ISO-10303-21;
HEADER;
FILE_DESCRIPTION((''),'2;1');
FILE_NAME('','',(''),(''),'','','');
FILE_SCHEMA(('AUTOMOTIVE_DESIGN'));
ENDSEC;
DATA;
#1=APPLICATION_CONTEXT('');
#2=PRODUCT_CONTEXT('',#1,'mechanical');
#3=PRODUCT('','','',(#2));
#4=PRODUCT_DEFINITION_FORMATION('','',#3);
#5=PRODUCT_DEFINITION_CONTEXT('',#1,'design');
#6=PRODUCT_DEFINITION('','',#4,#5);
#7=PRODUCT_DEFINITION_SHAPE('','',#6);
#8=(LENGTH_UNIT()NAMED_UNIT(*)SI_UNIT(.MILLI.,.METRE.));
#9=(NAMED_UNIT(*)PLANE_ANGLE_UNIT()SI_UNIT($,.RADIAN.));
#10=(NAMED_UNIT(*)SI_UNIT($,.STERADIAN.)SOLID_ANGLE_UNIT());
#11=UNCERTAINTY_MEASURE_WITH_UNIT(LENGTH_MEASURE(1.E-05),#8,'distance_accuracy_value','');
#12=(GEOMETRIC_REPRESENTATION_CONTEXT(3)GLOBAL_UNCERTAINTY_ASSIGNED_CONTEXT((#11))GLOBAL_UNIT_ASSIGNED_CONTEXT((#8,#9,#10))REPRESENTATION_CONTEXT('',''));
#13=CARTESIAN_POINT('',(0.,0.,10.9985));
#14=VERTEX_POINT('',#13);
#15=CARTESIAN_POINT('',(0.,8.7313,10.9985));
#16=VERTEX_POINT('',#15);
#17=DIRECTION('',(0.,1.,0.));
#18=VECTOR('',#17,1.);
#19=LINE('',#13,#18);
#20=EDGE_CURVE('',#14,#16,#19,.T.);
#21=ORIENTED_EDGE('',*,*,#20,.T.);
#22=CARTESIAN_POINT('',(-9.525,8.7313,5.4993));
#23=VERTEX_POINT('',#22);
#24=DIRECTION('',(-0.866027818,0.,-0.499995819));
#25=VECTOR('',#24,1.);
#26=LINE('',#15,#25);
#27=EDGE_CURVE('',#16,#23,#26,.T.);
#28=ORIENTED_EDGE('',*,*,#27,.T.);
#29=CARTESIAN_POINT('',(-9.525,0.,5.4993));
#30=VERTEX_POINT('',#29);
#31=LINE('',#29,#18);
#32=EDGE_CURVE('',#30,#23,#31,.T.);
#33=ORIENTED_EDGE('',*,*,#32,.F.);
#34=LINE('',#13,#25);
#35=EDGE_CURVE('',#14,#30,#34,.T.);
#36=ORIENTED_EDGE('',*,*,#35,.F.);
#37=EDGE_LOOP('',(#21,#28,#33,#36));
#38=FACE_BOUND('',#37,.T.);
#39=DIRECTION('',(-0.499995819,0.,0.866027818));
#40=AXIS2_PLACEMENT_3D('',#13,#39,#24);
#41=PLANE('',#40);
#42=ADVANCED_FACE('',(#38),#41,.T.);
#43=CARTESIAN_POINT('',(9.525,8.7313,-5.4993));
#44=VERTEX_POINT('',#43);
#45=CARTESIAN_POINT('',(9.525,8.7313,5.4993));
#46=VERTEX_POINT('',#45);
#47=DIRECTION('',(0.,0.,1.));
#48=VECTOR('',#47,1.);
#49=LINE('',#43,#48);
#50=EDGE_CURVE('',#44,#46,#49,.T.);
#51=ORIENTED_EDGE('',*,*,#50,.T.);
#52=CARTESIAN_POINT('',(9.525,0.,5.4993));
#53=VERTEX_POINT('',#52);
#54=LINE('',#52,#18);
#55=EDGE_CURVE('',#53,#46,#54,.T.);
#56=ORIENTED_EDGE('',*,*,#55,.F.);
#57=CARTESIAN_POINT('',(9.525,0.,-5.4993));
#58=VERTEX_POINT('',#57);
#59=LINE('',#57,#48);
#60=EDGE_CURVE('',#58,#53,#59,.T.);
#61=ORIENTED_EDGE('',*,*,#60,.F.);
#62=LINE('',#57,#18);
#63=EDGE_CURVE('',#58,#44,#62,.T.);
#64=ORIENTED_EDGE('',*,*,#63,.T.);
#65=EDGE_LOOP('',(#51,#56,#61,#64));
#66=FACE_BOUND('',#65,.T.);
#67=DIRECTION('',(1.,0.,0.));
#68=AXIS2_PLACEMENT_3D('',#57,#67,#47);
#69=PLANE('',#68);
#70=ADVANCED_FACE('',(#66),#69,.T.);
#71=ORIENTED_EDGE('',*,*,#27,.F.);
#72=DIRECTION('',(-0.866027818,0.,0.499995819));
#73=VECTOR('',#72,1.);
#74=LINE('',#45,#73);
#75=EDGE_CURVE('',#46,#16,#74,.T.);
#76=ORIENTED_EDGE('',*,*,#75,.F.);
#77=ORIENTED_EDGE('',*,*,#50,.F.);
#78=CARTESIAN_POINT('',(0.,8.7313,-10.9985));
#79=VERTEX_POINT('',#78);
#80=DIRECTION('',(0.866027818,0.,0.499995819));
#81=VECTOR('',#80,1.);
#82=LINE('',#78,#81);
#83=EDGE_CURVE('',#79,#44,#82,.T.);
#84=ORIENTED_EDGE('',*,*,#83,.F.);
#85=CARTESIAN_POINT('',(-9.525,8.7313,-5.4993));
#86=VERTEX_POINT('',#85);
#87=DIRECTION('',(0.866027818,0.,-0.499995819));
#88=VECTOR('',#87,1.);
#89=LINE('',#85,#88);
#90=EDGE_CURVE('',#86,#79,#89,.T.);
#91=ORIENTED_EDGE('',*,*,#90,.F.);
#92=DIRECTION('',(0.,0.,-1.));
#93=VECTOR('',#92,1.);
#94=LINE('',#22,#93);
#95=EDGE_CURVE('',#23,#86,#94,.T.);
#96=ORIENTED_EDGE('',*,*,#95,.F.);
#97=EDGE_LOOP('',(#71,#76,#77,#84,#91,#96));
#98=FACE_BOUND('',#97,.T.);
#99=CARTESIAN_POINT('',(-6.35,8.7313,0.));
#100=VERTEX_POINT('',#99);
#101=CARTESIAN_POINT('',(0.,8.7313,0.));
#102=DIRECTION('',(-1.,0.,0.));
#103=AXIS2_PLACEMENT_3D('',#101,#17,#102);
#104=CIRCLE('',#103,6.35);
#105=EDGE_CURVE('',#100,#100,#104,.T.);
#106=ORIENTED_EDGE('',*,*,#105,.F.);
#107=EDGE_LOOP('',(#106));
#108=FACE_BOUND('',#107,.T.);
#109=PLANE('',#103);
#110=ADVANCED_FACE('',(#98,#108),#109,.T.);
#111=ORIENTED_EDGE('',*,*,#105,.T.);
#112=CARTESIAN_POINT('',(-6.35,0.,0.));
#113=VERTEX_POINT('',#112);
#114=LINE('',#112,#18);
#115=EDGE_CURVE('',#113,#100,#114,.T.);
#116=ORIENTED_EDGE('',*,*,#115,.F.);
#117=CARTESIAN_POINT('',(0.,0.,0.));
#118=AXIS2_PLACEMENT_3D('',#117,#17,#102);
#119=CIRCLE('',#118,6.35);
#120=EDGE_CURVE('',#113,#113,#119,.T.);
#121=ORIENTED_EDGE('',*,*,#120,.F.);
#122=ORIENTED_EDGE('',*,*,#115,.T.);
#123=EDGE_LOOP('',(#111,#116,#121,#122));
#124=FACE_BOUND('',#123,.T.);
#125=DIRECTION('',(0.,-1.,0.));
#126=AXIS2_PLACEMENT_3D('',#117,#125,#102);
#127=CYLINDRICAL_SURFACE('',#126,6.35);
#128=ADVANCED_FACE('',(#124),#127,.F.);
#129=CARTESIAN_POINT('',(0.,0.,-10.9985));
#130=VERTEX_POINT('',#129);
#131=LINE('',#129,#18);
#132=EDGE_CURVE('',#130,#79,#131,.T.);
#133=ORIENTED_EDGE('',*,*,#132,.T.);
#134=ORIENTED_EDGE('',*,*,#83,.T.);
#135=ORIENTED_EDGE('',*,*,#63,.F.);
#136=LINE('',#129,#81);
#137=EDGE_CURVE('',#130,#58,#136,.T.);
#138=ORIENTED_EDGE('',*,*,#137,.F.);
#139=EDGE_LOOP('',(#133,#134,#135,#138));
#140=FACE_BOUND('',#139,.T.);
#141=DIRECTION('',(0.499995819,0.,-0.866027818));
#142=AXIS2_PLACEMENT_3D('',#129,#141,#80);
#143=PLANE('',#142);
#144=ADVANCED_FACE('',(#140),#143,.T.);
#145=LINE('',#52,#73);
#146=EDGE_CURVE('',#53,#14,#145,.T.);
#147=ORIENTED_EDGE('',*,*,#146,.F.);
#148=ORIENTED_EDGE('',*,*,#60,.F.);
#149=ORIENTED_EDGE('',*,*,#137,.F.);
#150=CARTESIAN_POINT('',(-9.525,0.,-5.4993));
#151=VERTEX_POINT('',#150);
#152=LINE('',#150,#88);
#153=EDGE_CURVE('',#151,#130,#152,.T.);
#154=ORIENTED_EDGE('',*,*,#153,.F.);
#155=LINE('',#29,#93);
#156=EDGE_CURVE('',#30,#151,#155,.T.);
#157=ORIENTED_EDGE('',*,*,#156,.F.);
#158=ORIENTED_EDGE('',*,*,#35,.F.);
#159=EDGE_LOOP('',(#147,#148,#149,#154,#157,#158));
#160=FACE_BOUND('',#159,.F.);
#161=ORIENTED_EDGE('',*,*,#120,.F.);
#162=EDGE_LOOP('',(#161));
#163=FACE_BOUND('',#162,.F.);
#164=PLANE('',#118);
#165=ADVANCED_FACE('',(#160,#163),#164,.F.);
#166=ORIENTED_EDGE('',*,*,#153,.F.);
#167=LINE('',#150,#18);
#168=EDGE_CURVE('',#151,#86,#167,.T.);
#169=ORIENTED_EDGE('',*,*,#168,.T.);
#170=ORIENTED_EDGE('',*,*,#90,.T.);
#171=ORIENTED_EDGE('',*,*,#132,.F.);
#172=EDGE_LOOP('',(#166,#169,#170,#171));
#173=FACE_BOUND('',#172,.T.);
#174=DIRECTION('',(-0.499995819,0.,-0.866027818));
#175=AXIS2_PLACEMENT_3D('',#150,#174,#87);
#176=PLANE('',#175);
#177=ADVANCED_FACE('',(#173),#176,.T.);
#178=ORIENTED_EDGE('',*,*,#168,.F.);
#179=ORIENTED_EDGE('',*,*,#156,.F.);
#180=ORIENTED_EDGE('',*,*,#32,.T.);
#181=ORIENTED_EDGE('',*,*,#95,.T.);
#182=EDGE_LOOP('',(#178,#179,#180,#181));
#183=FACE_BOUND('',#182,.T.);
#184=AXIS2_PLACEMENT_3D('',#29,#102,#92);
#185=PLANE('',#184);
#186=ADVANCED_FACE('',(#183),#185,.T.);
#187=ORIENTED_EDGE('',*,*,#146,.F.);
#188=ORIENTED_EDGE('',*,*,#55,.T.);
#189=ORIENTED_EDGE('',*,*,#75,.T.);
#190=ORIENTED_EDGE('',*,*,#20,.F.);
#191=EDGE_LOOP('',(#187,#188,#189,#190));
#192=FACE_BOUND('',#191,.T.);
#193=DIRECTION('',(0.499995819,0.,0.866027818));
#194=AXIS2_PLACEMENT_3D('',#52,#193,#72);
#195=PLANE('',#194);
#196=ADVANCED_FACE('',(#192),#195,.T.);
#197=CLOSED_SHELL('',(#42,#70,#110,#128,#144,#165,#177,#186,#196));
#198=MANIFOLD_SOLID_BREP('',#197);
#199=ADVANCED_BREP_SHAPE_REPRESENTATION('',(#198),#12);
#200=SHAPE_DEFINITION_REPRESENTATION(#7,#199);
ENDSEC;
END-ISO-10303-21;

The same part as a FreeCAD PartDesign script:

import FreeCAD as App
import Part
import Sketcher
Q = App.Units.Quantity


def add_polygon(sketch, points):
    """Adds a closed chain of lines whose ends are joined by coincident constraints."""
    first, n = sketch.GeometryCount, len(points)
    for a, b in zip(points, points[1:] + points[:1]):
        sketch.addGeometry(Part.LineSegment(App.Vector(*a, 0), App.Vector(*b, 0)), False)
    for i in range(n):
        sketch.addConstraint(Sketcher.Constraint("Coincident", first + i, 2, first + (i + 1) % n, 1))

doc = App.newDocument("Part")
body = doc.addObject("PartDesign::Body", "Body")

# Sketch on XZ plane
sketch1 = body.newObject("Sketcher::SketchObject", "Sketch")
sketch1.AttachmentSupport = (doc.getObject("XZ_Plane"), [""])
sketch1.MapMode = "FlatFace"
add_polygon(sketch1, [(0, -10.9985), (-9.525, -5.4993), (-9.525, 5.4993), (0, 10.9985), (9.525, 5.4993), (9.525, -5.4993)])  # lines 0-5
sketch1.addGeometry(Part.Circle(App.Vector(0, 0, 0), App.Vector(0, 0, 1), 6.35), False)  # 6
sketch1.addConstraint([
    Sketcher.Constraint("Vertical", 1),
    Sketcher.Constraint("Vertical", 4),
    Sketcher.Constraint("Coincident", 6, 3, -1, 1),
    Sketcher.Constraint("Symmetric", 0, 2, 3, 2, -1, 1),
    Sketcher.Constraint("Symmetric", 2, 2, 5, 2, -1, 1),
    Sketcher.Constraint("PointOnObject", 2, 2, -2),
    Sketcher.Constraint("Parallel", 2, 5),
    Sketcher.Constraint("Horizontal", 1, 2, 3, 2),
    Sketcher.Constraint("Diameter", 6, Q("0.5 in")),
    Sketcher.Constraint("DistanceX", 1, 2, 3, 2, Q("0.75 in")),
    Sketcher.Constraint("Angle", 0, Q("150.0003 deg")),
    Sketcher.Constraint("DistanceY", -1, 1, 2, 2, Q("0.433 in")),
])
pad1 = body.newObject("PartDesign::Pad", "Pad")
pad1.Profile = sketch1
pad1.Length = Q("0.343752 in")
pad1.Reversed = True

doc.recompute()
